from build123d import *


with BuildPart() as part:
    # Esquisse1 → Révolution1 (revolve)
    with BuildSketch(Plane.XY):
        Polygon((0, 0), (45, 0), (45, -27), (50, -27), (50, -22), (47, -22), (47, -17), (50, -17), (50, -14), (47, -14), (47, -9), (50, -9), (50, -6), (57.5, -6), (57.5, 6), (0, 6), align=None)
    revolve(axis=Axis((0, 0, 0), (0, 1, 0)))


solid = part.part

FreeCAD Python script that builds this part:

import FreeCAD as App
import Part
import Sketcher

V = App.Vector
Q = App.Units.Quantity

doc = App.newDocument("Part")
body = doc.addObject("PartDesign::Body", "Body")

# Sketch on XY plane
sketch1 = body.newObject("Sketcher::SketchObject", "Sketch")
sketch1.AttachmentSupport = (doc.getObject("XY_Plane"), [""])
sketch1.MapMode = "FlatFace"
sketch1.addGeometry(Part.LineSegment(V(0, 0, 0), V(45, 0, 0)), False)
sketch1.addGeometry(Part.LineSegment(V(45, 0, 0), V(45, -27, 0)), False)
sketch1.addGeometry(Part.LineSegment(V(45, -27, 0), V(50, -27, 0)), False)
sketch1.addGeometry(Part.LineSegment(V(50, -27, 0), V(50, -22, 0)), False)
sketch1.addGeometry(Part.LineSegment(V(50, -22, 0), V(47, -22, 0)), False)
sketch1.addGeometry(Part.LineSegment(V(47, -22, 0), V(47, -17, 0)), False)
sketch1.addGeometry(Part.LineSegment(V(47, -17, 0), V(50, -17, 0)), False)
sketch1.addGeometry(Part.LineSegment(V(50, -17, 0), V(50, -14, 0)), False)
sketch1.addGeometry(Part.LineSegment(V(50, -14, 0), V(47, -14, 0)), False)
sketch1.addGeometry(Part.LineSegment(V(47, -14, 0), V(47, -9, 0)), False)
sketch1.addGeometry(Part.LineSegment(V(47, -9, 0), V(50, -9, 0)), False)
sketch1.addGeometry(Part.LineSegment(V(50, -9, 0), V(50, -6, 0)), False)
sketch1.addGeometry(Part.LineSegment(V(50, -6, 0), V(57.5, -6, 0)), False)
sketch1.addGeometry(Part.LineSegment(V(57.5, -6, 0), V(57.5, 6, 0)), False)
sketch1.addGeometry(Part.LineSegment(V(57.5, 6, 0), V(0, 6, 0)), False)
sketch1.addGeometry(Part.LineSegment(V(0, 6, 0), V(0, 0, 0)), False)
sketch1.addConstraint(Sketcher.Constraint("Coincident", 0, 2, 1, 1))
sketch1.addConstraint(Sketcher.Constraint("Coincident", 1, 2, 2, 1))
sketch1.addConstraint(Sketcher.Constraint("Coincident", 2, 2, 3, 1))
sketch1.addConstraint(Sketcher.Constraint("Coincident", 3, 2, 4, 1))
sketch1.addConstraint(Sketcher.Constraint("Coincident", 4, 2, 5, 1))
sketch1.addConstraint(Sketcher.Constraint("Coincident", 5, 2, 6, 1))
sketch1.addConstraint(Sketcher.Constraint("Coincident", 6, 2, 7, 1))
sketch1.addConstraint(Sketcher.Constraint("Coincident", 7, 2, 8, 1))
sketch1.addConstraint(Sketcher.Constraint("Coincident", 8, 2, 9, 1))
sketch1.addConstraint(Sketcher.Constraint("Coincident", 9, 2, 10, 1))
sketch1.addConstraint(Sketcher.Constraint("Coincident", 10, 2, 11, 1))
sketch1.addConstraint(Sketcher.Constraint("Coincident", 11, 2, 12, 1))
sketch1.addConstraint(Sketcher.Constraint("Coincident", 12, 2, 13, 1))
sketch1.addConstraint(Sketcher.Constraint("Coincident", 13, 2, 14, 1))
sketch1.addConstraint(Sketcher.Constraint("Coincident", 14, 2, 15, 1))
sketch1.addConstraint(Sketcher.Constraint("Coincident", 15, 2, 0, 1))
sketch1.addConstraint(Sketcher.Constraint("Horizontal", 0))
sketch1.addConstraint(Sketcher.Constraint("Vertical", 1))
sketch1.addConstraint(Sketcher.Constraint("Horizontal", 2))
sketch1.addConstraint(Sketcher.Constraint("Vertical", 3))
sketch1.addConstraint(Sketcher.Constraint("Horizontal", 4))
sketch1.addConstraint(Sketcher.Constraint("Vertical", 5))
sketch1.addConstraint(Sketcher.Constraint("Horizontal", 6))
sketch1.addConstraint(Sketcher.Constraint("Vertical", 7))
sketch1.addConstraint(Sketcher.Constraint("Horizontal", 8))
sketch1.addConstraint(Sketcher.Constraint("Vertical", 9))
sketch1.addConstraint(Sketcher.Constraint("Horizontal", 10))
sketch1.addConstraint(Sketcher.Constraint("Vertical", 11))
sketch1.addConstraint(Sketcher.Constraint("Horizontal", 12))
sketch1.addConstraint(Sketcher.Constraint("Vertical", 13))
sketch1.addConstraint(Sketcher.Constraint("Horizontal", 14))
sketch1.addConstraint(Sketcher.Constraint("Vertical", 15))
sketch1.addConstraint(Sketcher.Constraint("Coincident", 15, 2, -1, 1))
sketch1.addConstraint(Sketcher.Constraint("Vertical", 3, 2, 6, 2))
sketch1.addConstraint(Sketcher.Constraint("Vertical", 5, 2, 8, 2))
sketch1.addConstraint(Sketcher.Constraint("Vertical", 7, 2, 10, 2))
sketch1.addConstraint(Sketcher.Constraint("Equal", 2, 3))
sketch1.addConstraint(Sketcher.Constraint("Equal", 3, 5))
sketch1.addConstraint(Sketcher.Constraint("Equal", 10, 7))
sketch1.addConstraint(Sketcher.Constraint("Equal", 5, 9))
sketch1.addConstraint(Sketcher.Constraint("Equal", 7, 11))
sketch1.addConstraint(Sketcher.Constraint("DistanceX", 0, 1, 0, 2, Q("45 mm")))
sketch1.addConstraint(Sketcher.Constraint("DistanceX", 2, 1, 2, 2, Q("5 mm")))
sketch1.addConstraint(Sketcher.Constraint("DistanceX", 4, 2, 4, 1, Q("3 mm")))
sketch1.addConstraint(Sketcher.Constraint("DistanceY", 1, 2, 1, 1, Q("27 mm")))
sketch1.addConstraint(Sketcher.Constraint("DistanceY", 13, 1, 13, 2, Q("12 mm")))
sketch1.addConstraint(Sketcher.Constraint("DistanceX", 12, 1, 12, 2, Q("7.5 mm")))
revolution = body.newObject("PartDesign::Revolution", "Revolution")
revolution.Profile = sketch1
revolution.ReferenceAxis = (sketch1, ["V_Axis"])
revolution.Angle = 360

doc.recompute()
